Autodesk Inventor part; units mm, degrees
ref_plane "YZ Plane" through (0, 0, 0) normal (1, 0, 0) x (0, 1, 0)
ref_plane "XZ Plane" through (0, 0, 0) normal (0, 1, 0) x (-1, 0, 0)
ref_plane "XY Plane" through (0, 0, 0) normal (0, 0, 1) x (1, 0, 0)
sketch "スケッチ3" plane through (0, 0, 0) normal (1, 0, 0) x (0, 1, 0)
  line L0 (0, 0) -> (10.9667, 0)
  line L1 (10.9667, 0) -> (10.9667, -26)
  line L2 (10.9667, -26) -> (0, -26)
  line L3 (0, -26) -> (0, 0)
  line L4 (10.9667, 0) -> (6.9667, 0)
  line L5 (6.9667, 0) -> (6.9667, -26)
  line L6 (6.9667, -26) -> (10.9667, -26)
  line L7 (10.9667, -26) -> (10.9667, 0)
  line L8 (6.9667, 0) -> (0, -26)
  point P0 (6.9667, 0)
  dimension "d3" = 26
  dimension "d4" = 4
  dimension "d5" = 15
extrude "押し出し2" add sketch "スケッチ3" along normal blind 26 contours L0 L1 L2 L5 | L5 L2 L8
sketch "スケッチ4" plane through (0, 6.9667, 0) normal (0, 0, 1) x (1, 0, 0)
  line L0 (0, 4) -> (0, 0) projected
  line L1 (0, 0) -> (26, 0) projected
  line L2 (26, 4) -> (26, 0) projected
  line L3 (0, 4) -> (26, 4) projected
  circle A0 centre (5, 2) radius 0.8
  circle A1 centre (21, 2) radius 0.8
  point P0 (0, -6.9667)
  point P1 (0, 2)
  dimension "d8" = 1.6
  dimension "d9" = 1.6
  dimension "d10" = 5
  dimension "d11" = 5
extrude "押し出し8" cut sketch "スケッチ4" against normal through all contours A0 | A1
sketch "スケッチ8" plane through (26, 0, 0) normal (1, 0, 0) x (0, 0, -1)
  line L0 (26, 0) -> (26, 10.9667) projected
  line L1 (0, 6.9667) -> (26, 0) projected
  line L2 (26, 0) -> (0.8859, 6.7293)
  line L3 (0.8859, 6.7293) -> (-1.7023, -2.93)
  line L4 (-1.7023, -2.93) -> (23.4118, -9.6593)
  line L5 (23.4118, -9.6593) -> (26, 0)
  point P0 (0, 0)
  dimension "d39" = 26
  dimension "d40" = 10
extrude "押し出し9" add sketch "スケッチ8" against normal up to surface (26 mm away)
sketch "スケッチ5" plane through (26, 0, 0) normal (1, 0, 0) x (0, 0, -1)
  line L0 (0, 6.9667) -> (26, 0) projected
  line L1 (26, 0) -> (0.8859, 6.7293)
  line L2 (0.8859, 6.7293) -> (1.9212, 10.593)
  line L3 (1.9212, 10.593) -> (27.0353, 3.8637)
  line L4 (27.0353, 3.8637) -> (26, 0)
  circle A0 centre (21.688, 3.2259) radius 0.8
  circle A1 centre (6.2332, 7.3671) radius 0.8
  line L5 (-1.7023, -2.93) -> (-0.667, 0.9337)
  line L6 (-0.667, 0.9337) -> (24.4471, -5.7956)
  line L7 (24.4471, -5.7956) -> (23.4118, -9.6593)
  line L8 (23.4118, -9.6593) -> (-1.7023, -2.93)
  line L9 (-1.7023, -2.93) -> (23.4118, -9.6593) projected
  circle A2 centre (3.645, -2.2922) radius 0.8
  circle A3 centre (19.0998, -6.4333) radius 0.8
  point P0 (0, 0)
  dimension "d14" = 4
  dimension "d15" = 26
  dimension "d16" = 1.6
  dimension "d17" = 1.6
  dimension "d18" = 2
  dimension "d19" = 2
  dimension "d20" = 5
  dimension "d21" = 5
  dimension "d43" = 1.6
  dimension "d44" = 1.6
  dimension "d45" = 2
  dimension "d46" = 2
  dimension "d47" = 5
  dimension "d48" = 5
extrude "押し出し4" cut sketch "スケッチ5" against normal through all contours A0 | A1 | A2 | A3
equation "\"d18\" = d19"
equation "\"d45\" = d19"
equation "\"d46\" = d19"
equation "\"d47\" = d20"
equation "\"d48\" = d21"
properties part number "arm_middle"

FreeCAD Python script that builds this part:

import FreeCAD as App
import Part
import Sketcher
from FreeCAD import Vector
Q = App.Units.Quantity

doc = App.newDocument("Part")
body = doc.addObject("PartDesign::Body", "Body")

# Sketch on YZ plane
sketch1 = body.newObject("Sketcher::SketchObject", "Sketch")
sketch1.AttachmentSupport = (doc.getObject("YZ_Plane"), [""])
sketch1.MapMode = "FlatFace"
sketch1.addGeometry(Part.LineSegment(Vector(10.9667, 0, 0), Vector(6.9667, 0, 0)), False)
sketch1.addGeometry(Part.LineSegment(Vector(6.9667, 0, 0), Vector(0, -26, 0)), False)
sketch1.addGeometry(Part.LineSegment(Vector(0, -26, 0), Vector(10.9667, -26, 0)), False)
sketch1.addGeometry(Part.LineSegment(Vector(10.9667, -26, 0), Vector(10.9667, 0, 0)), False)
sketch1.addConstraint(Sketcher.Constraint("Coincident", 0, 2, 1, 1))
sketch1.addConstraint(Sketcher.Constraint("Coincident", 1, 2, 2, 1))
sketch1.addConstraint(Sketcher.Constraint("Coincident", 2, 2, 3, 1))
sketch1.addConstraint(Sketcher.Constraint("Coincident", 3, 2, 0, 1))
sketch1.addConstraint(Sketcher.Constraint("Horizontal", 0))
sketch1.addConstraint(Sketcher.Constraint("Horizontal", 2))
sketch1.addConstraint(Sketcher.Constraint("Vertical", 3))
sketch1.addConstraint(Sketcher.Constraint("PointOnObject", 0, 2, -1))
sketch1.addConstraint(Sketcher.Constraint("PointOnObject", 1, 2, -2))
sketch1.addConstraint(Sketcher.Constraint("DistanceX", 0, 2, 0, 1, 4.0))
sketch1.addConstraint(Sketcher.Constraint("DistanceY", 3, 1, 3, 2, 26.0))
sketch1.addConstraint(Sketcher.Constraint("Angle", 1, Q("-105 deg")))
pad1 = body.newObject("PartDesign::Pad", "Pad")
pad1.Profile = sketch1
pad1.Length = 26

# Sketch on XY plane
sketch2 = body.newObject("Sketcher::SketchObject", "Sketch001")
sketch2.AttachmentSupport = (doc.getObject("XY_Plane"), [""])
sketch2.MapMode = "FlatFace"
sketch2.addGeometry(Part.Circle(Vector(5, 8.9667, 0), Vector(0, 0, 1), 0.8), False)
sketch2.addGeometry(Part.Circle(Vector(21, 8.9667, 0), Vector(0, 0, 1), 0.8), False)
sketch2.addConstraint(Sketcher.Constraint("Equal", 0, 1))
sketch2.addConstraint(Sketcher.Constraint("Horizontal", 0, 3, 1, 3))
sketch2.addConstraint(Sketcher.Constraint("Diameter", 0, 1.6))
sketch2.addConstraint(Sketcher.Constraint("DistanceX", -1, 1, 0, 3, 5.0))
sketch2.addConstraint(Sketcher.Constraint("DistanceX", -1, 1, 1, 3, 21.0))
sketch2.addConstraint(Sketcher.Constraint("DistanceY", -1, 1, 0, 3, 8.9667))
pocket1 = body.newObject("PartDesign::Pocket", "Pocket")
pocket1.Profile = sketch2
pocket1.Type = "ThroughAll"

# Sketch on YZ plane
sketch3 = body.newObject("Sketcher::SketchObject", "Sketch002")
sketch3.AttachmentSupport = (doc.getObject("YZ_Plane"), [""])
sketch3.MapMode = "FlatFace"
sketch3.AttachmentOffset = App.Placement(Vector(0, 0, 26), App.Rotation())
sketch3.addGeometry(Part.LineSegment(Vector(0, -26, 0), Vector(6.729322, -0.885906, 0)), False)
sketch3.addGeometry(Part.LineSegment(Vector(6.7293, -0.8859, 0), Vector(-2.93, 1.7023, 0)), False)
sketch3.addGeometry(Part.LineSegment(Vector(-2.93, 1.7023, 0), Vector(-9.6593, -23.4118, 0)), False)
sketch3.addGeometry(Part.LineSegment(Vector(-9.6593, -23.4118, 0), Vector(0, -26, 0)), False)
sketch3.addConstraint(Sketcher.Constraint("Coincident", 0, 2, 1, 1))
sketch3.addConstraint(Sketcher.Constraint("Coincident", 1, 2, 2, 1))
sketch3.addConstraint(Sketcher.Constraint("Coincident", 2, 2, 3, 1))
sketch3.addConstraint(Sketcher.Constraint("Coincident", 3, 2, 0, 1))
sketch3.addConstraint(Sketcher.Constraint("PointOnObject", 3, 2, -2))
sketch3.addConstraint(Sketcher.Constraint("Perpendicular", 0, 1))
sketch3.addConstraint(Sketcher.Constraint("Perpendicular", 1, 2))
sketch3.addConstraint(Sketcher.Constraint("Perpendicular", 2, 3))
sketch3.addConstraint(Sketcher.Constraint("Distance", 0, 26.0))
sketch3.addConstraint(Sketcher.Constraint("Distance", 1, 10.0))
sketch3.addConstraint(Sketcher.Constraint("DistanceY", 3, 2, -1, 1, 26.0))
sketch3.addConstraint(Sketcher.Constraint("Angle", 0, Q("75 deg")))
pad2 = body.newObject("PartDesign::Pad", "Pad001")
pad2.Profile = sketch3
pad2.Length = 26
pad2.Reversed = True

# Sketch on YZ plane
sketch4 = body.newObject("Sketcher::SketchObject", "Sketch003")
sketch4.AttachmentSupport = (doc.getObject("YZ_Plane"), [""])
sketch4.MapMode = "FlatFace"
sketch4.AttachmentOffset = App.Placement(Vector(0, 0, 26), App.Rotation())
sketch4.addGeometry(Part.Circle(Vector(3.2259, -21.688, 0), Vector(0, 0, 1), 0.8), False)
sketch4.addGeometry(Part.Circle(Vector(7.3671, -6.2332, 0), Vector(0, 0, 1), 0.8), False)
sketch4.addGeometry(Part.Circle(Vector(-2.2922, -3.645, 0), Vector(0, 0, 1), 0.8), False)
sketch4.addGeometry(Part.Circle(Vector(-6.4333, -19.0998, 0), Vector(0, 0, 1), 0.8), False)
sketch4.addConstraint(Sketcher.Constraint("Equal", 0, 1))
sketch4.addConstraint(Sketcher.Constraint("Equal", 1, 2))
sketch4.addConstraint(Sketcher.Constraint("Equal", 2, 3))
sketch4.addConstraint(Sketcher.Constraint("Diameter", 0, 1.6))
sketch4.addConstraint(Sketcher.Constraint("DistanceX", -1, 1, 0, 3, 3.226))
sketch4.addConstraint(Sketcher.Constraint("DistanceY", 0, 3, -1, 1, 21.688))
sketch4.addConstraint(Sketcher.Constraint("DistanceX", -1, 1, 1, 3, 7.367))
sketch4.addConstraint(Sketcher.Constraint("DistanceY", 2, 3, -1, 1, 3.645))
sketch4.addConstraint(Sketcher.Constraint("DistanceX", 2, 3, 0, 3, 5.518))
sketch4.addConstraint(Sketcher.Constraint("DistanceX", 3, 3, 2, 3, 4.141))
sketch4.addConstraint(Sketcher.Constraint("DistanceY", 1, 3, -1, 1, 6.2332))
sketch4.addConstraint(Sketcher.Constraint("DistanceY", 3, 3, -1, 1, 19.0998))
pocket2 = body.newObject("PartDesign::Pocket", "Pocket001")
pocket2.Profile = sketch4
pocket2.Type = "ThroughAll"

doc.recompute()
